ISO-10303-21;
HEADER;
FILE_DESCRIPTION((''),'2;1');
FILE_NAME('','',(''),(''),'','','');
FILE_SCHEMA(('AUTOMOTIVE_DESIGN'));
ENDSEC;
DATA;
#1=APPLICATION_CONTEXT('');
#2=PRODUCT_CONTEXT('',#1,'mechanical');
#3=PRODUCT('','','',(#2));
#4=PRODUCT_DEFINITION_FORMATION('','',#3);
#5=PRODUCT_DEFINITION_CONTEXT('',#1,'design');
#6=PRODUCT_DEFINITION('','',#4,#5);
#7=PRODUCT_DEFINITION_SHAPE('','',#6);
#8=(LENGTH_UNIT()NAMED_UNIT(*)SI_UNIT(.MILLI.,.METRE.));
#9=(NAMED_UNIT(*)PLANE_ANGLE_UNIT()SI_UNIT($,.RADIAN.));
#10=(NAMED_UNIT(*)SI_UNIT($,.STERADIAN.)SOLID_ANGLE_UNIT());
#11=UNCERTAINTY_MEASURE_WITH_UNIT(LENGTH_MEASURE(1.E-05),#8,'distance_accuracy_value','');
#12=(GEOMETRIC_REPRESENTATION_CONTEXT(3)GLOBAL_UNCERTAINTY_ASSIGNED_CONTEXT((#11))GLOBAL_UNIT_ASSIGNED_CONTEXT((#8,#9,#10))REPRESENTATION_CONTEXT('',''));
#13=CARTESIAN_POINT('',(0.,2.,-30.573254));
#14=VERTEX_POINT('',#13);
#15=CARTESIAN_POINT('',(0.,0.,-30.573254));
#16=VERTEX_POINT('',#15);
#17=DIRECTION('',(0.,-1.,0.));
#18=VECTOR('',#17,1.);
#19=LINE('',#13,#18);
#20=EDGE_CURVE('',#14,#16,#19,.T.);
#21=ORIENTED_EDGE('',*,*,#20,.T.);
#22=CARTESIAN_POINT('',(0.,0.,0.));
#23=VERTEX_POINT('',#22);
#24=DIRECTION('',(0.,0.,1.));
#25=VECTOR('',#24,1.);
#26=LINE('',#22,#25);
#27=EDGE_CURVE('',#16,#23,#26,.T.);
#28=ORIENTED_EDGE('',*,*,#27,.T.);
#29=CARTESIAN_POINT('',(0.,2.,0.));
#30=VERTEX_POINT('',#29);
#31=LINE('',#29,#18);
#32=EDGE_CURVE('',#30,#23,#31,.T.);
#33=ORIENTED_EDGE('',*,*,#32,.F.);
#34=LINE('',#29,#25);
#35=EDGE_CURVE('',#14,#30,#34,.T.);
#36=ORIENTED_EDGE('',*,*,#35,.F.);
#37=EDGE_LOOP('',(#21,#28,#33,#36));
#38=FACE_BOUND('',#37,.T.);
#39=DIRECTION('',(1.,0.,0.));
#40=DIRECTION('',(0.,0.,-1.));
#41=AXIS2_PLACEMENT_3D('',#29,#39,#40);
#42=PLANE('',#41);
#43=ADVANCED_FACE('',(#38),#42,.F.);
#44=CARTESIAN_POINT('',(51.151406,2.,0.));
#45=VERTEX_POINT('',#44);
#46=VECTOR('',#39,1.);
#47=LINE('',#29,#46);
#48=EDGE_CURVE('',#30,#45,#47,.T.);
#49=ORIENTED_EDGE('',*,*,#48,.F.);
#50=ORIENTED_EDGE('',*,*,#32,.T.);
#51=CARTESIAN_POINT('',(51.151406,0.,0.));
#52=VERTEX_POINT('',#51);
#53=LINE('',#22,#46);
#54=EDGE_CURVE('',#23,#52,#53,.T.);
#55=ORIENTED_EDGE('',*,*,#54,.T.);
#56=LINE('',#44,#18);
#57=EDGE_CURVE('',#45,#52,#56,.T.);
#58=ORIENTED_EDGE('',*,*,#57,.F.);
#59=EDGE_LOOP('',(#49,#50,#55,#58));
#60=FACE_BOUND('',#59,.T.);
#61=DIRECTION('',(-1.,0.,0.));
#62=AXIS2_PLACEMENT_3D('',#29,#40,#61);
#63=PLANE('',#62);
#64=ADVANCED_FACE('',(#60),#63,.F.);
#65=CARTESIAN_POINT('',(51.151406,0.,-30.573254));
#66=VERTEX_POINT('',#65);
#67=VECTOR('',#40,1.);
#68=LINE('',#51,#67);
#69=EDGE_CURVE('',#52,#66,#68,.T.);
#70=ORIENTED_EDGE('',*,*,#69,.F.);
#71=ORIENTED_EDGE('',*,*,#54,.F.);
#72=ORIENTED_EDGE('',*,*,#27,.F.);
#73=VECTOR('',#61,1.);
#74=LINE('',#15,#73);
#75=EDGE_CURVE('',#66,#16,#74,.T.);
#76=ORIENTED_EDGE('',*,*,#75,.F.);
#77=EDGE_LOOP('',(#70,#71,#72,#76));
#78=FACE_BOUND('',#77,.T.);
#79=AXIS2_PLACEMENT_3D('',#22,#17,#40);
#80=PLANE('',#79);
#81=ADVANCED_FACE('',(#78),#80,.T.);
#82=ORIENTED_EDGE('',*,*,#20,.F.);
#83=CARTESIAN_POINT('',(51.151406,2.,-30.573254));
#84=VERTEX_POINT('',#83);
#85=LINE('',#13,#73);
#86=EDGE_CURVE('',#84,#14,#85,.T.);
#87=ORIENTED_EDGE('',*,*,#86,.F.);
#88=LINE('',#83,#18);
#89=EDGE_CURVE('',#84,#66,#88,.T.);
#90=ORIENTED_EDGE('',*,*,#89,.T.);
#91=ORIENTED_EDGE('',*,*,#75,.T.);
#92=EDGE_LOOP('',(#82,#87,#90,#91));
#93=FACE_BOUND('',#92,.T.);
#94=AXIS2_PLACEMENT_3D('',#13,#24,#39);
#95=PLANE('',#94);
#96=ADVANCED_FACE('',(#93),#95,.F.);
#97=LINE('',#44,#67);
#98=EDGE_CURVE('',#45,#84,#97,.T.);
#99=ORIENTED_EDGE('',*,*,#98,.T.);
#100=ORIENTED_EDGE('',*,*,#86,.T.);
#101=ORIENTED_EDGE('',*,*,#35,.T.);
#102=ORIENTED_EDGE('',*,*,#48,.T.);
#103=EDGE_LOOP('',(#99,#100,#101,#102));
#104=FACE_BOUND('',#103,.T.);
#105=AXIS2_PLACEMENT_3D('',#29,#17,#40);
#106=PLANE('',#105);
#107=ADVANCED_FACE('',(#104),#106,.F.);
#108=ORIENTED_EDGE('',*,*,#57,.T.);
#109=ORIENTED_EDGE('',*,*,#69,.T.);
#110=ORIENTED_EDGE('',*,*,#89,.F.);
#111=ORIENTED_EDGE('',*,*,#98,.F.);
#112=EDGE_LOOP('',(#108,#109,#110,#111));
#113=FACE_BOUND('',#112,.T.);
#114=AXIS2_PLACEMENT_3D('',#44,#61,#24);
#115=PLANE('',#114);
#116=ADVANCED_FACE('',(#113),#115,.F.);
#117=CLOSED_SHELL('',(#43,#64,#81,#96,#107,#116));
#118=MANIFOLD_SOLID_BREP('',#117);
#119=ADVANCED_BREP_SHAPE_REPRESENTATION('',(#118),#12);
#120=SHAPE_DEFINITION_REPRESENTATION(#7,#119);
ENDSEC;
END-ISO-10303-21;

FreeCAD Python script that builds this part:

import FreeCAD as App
import Part
import Sketcher
Q = App.Units.Quantity


def add_polygon(sketch, points):
    """Adds a closed chain of lines whose ends are joined by coincident constraints."""
    first, n = sketch.GeometryCount, len(points)
    for a, b in zip(points, points[1:] + points[:1]):
        sketch.addGeometry(Part.LineSegment(App.Vector(*a, 0), App.Vector(*b, 0)), False)
    for i in range(n):
        sketch.addConstraint(Sketcher.Constraint("Coincident", first + i, 2, first + (i + 1) % n, 1))

doc = App.newDocument("Part")
params = doc.addObject("Spreadsheet::Sheet", "Params")
for row, (alias, value) in enumerate([
    ("pad1_length", "2 mm"),
], start=1):
    params.set(f"A{row}", alias)
    params.set(f"B{row}", "=" + value)
    params.setAlias(f"B{row}", alias)

body = doc.addObject("PartDesign::Body", "Body")

sketch1 = body.newObject("Sketcher::SketchObject", "Sketch")
sketch1.AttachmentSupport = (doc.getObject("XZ_Plane"), [""])
sketch1.MapMode = "FlatFace"
add_polygon(sketch1, [(0, -31), (0, 0), (51, 0), (51, -31)])
sketch1.addConstraint(Sketcher.Constraint("Vertical", 0))
sketch1.addConstraint(Sketcher.Constraint("Horizontal", 1))
sketch1.addConstraint(Sketcher.Constraint("Vertical", 2))
sketch1.addConstraint(Sketcher.Constraint("Horizontal", 3))
sketch1.addConstraint(Sketcher.Constraint("Coincident", 0, 2, -1, 1))
sketch1.addConstraint(Sketcher.Constraint("DistanceX", 1, 1, 1, 2, Q("51.151406 mm")))
sketch1.addConstraint(Sketcher.Constraint("DistanceY", 0, 1, 0, 2, Q("30.573254 mm")))
pad1 = body.newObject("PartDesign::Pad", "Pad")
pad1.Profile = sketch1
pad1.setExpression("Length", "Params.pad1_length")
pad1.Reversed = True

doc.recompute()
